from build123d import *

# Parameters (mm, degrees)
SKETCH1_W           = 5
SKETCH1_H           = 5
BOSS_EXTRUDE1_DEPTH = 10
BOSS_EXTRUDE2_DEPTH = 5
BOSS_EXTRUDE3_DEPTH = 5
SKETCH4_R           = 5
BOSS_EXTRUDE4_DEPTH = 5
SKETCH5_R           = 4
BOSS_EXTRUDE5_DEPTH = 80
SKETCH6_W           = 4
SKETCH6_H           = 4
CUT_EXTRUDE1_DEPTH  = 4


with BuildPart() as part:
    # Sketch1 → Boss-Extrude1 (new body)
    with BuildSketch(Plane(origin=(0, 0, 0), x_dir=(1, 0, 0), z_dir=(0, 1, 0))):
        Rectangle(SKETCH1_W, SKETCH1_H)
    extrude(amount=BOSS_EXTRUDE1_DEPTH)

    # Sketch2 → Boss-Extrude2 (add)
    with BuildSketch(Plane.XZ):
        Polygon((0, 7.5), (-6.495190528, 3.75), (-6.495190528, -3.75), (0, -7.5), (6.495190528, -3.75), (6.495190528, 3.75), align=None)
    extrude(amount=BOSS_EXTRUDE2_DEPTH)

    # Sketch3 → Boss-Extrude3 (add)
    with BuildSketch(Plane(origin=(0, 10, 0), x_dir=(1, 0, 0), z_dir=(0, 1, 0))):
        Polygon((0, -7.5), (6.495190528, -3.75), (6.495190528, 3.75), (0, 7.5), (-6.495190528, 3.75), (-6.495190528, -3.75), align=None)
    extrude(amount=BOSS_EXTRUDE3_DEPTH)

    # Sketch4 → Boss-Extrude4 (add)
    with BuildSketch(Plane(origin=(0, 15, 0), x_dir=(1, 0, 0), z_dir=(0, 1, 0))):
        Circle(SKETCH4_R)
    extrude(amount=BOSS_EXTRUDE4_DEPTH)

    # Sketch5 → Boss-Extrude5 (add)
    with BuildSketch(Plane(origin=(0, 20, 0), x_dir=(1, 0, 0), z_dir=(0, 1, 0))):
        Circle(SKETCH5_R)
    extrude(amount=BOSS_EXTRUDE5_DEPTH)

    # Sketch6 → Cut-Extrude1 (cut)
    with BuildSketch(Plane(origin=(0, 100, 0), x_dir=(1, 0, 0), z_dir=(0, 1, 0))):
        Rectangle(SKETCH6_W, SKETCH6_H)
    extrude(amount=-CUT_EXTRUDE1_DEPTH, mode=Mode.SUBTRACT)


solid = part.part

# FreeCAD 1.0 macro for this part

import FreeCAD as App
import Part
import Sketcher
Q = App.Units.Quantity


def add_polygon(sketch, points):
    """Adds a closed chain of lines whose ends are joined by coincident constraints."""
    first, n = sketch.GeometryCount, len(points)
    for a, b in zip(points, points[1:] + points[:1]):
        sketch.addGeometry(Part.LineSegment(App.Vector(*a, 0), App.Vector(*b, 0)), False)
    for i in range(n):
        sketch.addConstraint(Sketcher.Constraint("Coincident", first + i, 2, first + (i + 1) % n, 1))

doc = App.newDocument("Part")
body = doc.addObject("PartDesign::Body", "Body")

sketch1 = doc.addObject("Sketcher::SketchObject", "Sketch")
body.addObject(sketch1)
sketch1.AttachmentSupport = (doc.XZ_Plane, [""])
sketch1.MapMode = "FlatFace"
add_polygon(sketch1, [(-2, -2), (-2, 2), (2, 2), (2, -2)])
sketch1.addConstraint([
    Sketcher.Constraint("Vertical", 0),
    Sketcher.Constraint("Horizontal", 1),
    Sketcher.Constraint("Vertical", 2),
    Sketcher.Constraint("Horizontal", 3),
    Sketcher.Constraint("Symmetric", 0, 2, 2, 2, -1, 1),
    Sketcher.Constraint("Equal", 3, 0),
    Sketcher.Constraint("DistanceX", 1, 1, 1, 2, 5.0),
])
pad1 = doc.addObject("PartDesign::Pad", "Pad")
body.addObject(pad1)
pad1.Profile = sketch1
pad1.Length = 10
pad1.Reversed = True

sketch2 = doc.addObject("Sketcher::SketchObject", "Sketch001")
body.addObject(sketch2)
sketch2.AttachmentSupport = (doc.XZ_Plane, [""])
sketch2.MapMode = "FlatFace"
add_polygon(sketch2, [(0, 8), (-6, 4), (-6, -4), (0, -8), (6, -4), (6, 4)])
sketch2.addConstraint([
    Sketcher.Constraint("Vertical", 1),
    Sketcher.Constraint("Vertical", 4),
    Sketcher.Constraint("Symmetric", 0, 2, 3, 2, -1, 1),
    Sketcher.Constraint("Symmetric", 2, 2, 5, 2, -1, 1),
    Sketcher.Constraint("PointOnObject", 2, 2, -2),
    Sketcher.Constraint("Parallel", 2, 5),
    Sketcher.Constraint("Horizontal", 1, 2, 3, 2),
    Sketcher.Constraint("Angle", 0, Q("-150 deg")),
    Sketcher.Constraint("DistanceY", 1, 2, 1, 1, 7.5),
    Sketcher.Constraint("DistanceY", 2, 2, 5, 2, 15.0),
])
pad2 = doc.addObject("PartDesign::Pad", "Pad001")
body.addObject(pad2)
pad2.Profile = sketch2
pad2.Length = 5

sketch3 = doc.addObject("Sketcher::SketchObject", "Sketch002")
body.addObject(sketch3)
sketch3.AttachmentSupport = (doc.XZ_Plane, [""])
sketch3.MapMode = "FlatFace"
sketch3.AttachmentOffset = App.Placement(App.Vector(0, 0, -10), App.Rotation())
add_polygon(sketch3, [(0, 8), (6, 4), (6, -4), (0, -8), (-6, -4), (-6, 4)])
sketch3.addConstraint([
    Sketcher.Constraint("Vertical", 1),
    Sketcher.Constraint("Vertical", 4),
    Sketcher.Constraint("Symmetric", 0, 2, 3, 2, -1, 1),
    Sketcher.Constraint("Symmetric", 2, 2, 5, 2, -1, 1),
    Sketcher.Constraint("PointOnObject", 2, 2, -2),
    Sketcher.Constraint("Parallel", 2, 5),
    Sketcher.Constraint("Horizontal", 1, 2, 3, 2),
    Sketcher.Constraint("Angle", 0, Q("-30 deg")),
    Sketcher.Constraint("DistanceY", 1, 2, 1, 1, 7.5),
    Sketcher.Constraint("DistanceY", 2, 2, 5, 2, 15.0),
])
pad3 = doc.addObject("PartDesign::Pad", "Pad002")
body.addObject(pad3)
pad3.Profile = sketch3
pad3.Length = 5
pad3.Reversed = True

sketch4 = doc.addObject("Sketcher::SketchObject", "Sketch003")
body.addObject(sketch4)
sketch4.AttachmentSupport = (doc.XZ_Plane, [""])
sketch4.MapMode = "FlatFace"
sketch4.AttachmentOffset = App.Placement(App.Vector(0, 0, -15), App.Rotation())
sketch4.addGeometry(Part.Circle(App.Vector(0, 0, 0), App.Vector(0, 0, 1), 5), False)
sketch4.addConstraint([
    Sketcher.Constraint("Coincident", 0, 3, -1, 1),
    Sketcher.Constraint("Diameter", 0, 10.0),
])
pad4 = doc.addObject("PartDesign::Pad", "Pad003")
body.addObject(pad4)
pad4.Profile = sketch4
pad4.Length = 5
pad4.Reversed = True

sketch5 = doc.addObject("Sketcher::SketchObject", "Sketch004")
body.addObject(sketch5)
sketch5.AttachmentSupport = (doc.XZ_Plane, [""])
sketch5.MapMode = "FlatFace"
sketch5.AttachmentOffset = App.Placement(App.Vector(0, 0, -20), App.Rotation())
sketch5.addGeometry(Part.Circle(App.Vector(0, 0, 0), App.Vector(0, 0, 1), 4), False)
sketch5.addConstraint([
    Sketcher.Constraint("Coincident", 0, 3, -1, 1),
    Sketcher.Constraint("Diameter", 0, 8.0),
])
pad5 = doc.addObject("PartDesign::Pad", "Pad004")
body.addObject(pad5)
pad5.Profile = sketch5
pad5.Length = 80
pad5.Reversed = True

sketch6 = doc.addObject("Sketcher::SketchObject", "Sketch005")
body.addObject(sketch6)
sketch6.AttachmentSupport = (doc.XZ_Plane, [""])
sketch6.MapMode = "FlatFace"
sketch6.AttachmentOffset = App.Placement(App.Vector(0, 0, -100), App.Rotation())
add_polygon(sketch6, [(-2, -2), (-2, 2), (2, 2), (2, -2)])
sketch6.addConstraint([
    Sketcher.Constraint("Vertical", 0),
    Sketcher.Constraint("Horizontal", 1),
    Sketcher.Constraint("Vertical", 2),
    Sketcher.Constraint("Horizontal", 3),
    Sketcher.Constraint("Symmetric", 0, 2, 2, 2, -1, 1),
    Sketcher.Constraint("Equal", 3, 0),
    Sketcher.Constraint("DistanceX", 1, 1, 1, 2, 4.0),
])
pocket1 = doc.addObject("PartDesign::Pocket", "Pocket")
body.addObject(pocket1)
pocket1.Profile = sketch6
pocket1.Length = 4
pocket1.Reversed = True

doc.recompute()
